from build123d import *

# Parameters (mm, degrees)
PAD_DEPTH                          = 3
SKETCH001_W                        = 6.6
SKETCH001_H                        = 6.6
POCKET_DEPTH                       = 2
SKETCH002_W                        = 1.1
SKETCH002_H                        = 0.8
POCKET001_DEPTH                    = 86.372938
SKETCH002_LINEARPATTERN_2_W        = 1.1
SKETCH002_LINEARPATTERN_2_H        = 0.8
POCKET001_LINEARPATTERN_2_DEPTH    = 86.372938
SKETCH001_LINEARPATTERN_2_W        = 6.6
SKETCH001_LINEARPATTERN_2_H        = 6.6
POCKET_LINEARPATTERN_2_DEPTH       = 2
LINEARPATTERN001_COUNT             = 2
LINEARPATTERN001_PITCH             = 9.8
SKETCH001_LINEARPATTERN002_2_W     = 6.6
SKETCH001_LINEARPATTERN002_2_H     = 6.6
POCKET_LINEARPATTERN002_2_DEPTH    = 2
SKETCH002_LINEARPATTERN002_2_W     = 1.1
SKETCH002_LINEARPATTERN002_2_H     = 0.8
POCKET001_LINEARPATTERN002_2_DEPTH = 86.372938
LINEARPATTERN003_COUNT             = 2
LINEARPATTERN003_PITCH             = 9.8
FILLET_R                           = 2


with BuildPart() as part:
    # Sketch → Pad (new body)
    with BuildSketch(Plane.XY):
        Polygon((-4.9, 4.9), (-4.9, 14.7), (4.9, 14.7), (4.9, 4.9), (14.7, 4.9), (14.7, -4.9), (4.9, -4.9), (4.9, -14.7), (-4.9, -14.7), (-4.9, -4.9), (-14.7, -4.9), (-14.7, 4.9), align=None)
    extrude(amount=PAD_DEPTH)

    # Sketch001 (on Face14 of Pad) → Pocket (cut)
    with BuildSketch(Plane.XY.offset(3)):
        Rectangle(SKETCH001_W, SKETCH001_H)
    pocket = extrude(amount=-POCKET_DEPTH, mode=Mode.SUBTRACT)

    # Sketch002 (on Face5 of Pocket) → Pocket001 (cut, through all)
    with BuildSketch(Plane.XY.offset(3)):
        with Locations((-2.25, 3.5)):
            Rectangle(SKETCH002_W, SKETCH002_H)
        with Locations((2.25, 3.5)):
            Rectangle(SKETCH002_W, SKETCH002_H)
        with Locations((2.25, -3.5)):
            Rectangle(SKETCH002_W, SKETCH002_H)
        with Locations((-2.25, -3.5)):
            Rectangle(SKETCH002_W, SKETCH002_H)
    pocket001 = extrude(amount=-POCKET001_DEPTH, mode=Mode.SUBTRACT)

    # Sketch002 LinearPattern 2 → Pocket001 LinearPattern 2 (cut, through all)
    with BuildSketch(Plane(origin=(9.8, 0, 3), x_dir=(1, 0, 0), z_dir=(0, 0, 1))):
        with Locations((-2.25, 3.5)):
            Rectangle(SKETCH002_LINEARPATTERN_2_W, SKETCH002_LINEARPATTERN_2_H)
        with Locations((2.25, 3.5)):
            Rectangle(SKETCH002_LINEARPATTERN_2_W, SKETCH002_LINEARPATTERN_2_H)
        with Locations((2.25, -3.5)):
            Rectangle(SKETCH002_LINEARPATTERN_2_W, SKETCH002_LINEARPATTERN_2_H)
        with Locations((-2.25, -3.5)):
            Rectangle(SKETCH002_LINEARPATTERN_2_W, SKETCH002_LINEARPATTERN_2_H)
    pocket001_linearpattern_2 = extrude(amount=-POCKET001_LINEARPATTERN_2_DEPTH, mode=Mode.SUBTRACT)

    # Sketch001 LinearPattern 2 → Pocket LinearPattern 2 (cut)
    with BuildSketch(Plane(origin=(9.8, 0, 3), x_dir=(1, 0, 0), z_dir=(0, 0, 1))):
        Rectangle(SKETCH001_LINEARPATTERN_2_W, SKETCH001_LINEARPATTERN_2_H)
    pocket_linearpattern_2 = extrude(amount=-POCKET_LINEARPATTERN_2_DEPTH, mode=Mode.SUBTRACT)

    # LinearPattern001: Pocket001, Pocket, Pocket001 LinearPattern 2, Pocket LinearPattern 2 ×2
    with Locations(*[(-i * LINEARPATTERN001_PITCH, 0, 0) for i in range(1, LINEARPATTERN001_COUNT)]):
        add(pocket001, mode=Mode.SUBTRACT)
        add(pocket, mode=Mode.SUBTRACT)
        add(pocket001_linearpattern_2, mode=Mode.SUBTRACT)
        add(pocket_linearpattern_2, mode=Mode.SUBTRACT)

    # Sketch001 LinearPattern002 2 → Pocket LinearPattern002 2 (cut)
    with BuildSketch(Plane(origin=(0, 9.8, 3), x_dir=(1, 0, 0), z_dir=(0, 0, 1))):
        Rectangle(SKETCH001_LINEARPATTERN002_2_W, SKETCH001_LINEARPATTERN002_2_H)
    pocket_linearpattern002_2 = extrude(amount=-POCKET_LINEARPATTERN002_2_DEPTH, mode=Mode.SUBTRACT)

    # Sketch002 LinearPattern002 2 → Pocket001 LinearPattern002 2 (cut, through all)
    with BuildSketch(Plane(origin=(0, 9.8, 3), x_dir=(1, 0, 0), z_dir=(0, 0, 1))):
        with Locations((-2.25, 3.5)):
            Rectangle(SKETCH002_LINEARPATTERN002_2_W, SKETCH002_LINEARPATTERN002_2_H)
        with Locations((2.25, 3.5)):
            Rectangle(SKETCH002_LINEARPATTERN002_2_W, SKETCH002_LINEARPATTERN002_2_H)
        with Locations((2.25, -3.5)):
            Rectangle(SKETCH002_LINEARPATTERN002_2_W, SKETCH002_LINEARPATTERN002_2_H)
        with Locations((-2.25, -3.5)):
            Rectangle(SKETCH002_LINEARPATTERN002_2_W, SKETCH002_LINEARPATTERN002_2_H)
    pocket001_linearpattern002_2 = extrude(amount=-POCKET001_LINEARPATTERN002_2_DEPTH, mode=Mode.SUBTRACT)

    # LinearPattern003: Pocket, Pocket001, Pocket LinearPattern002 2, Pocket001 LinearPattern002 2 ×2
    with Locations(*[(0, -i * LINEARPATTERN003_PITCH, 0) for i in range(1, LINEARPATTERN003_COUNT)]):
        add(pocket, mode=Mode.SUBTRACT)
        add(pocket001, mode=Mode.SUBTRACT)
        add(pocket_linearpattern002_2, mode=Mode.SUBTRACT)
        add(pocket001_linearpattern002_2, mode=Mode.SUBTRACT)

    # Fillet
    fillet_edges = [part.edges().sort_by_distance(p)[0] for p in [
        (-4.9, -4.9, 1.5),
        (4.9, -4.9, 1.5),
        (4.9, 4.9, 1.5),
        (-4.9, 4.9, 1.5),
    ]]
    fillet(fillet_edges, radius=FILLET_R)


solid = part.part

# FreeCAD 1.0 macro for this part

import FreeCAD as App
import Part
import Sketcher
Q = App.Units.Quantity


def edges_at(feature, points):
    """Names of the edges that pass closest to the given points."""
    edges = feature.Shape.Edges
    near = lambda p: min(range(len(edges)), key=lambda i: edges[i].distToShape(Part.Vertex(*p))[0])
    return sorted({f"Edge{near(p) + 1}" for p in points})

doc = App.newDocument("Part")
params = doc.addObject("Spreadsheet::Sheet", "Params")
for row, (alias, value) in enumerate([
    ("sketch1_width", "9.8 mm"),
    ("pad1_length", "3 mm"),
    ("sketch2_width", "6.6 mm"),
    ("pocket1_length", "2 mm"),
    ("sketch3_width", "1.1 mm"),
    ("sketch3_height", "0.8 mm"),
    ("sketch4_width", "1.1 mm"),
    ("sketch4_height", "0.8 mm"),
    ("sketch5_width", "6.6 mm"),
    ("pocket4_length", "2 mm"),
    ("linearpattern_pitch", "9.8 mm"),
    ("sketch6_width", "6.6 mm"),
    ("pocket5_length", "2 mm"),
    ("sketch7_width", "1.1 mm"),
    ("sketch7_height", "0.8 mm"),
    ("linearpattern2_pitch", "9.8 mm"),
    ("fillet_radius", "2 mm"),
], start=1):
    params.set(f"A{row}", alias)
    params.set(f"B{row}", "=" + value)
    params.setAlias(f"B{row}", alias)

body = doc.addObject("PartDesign::Body", "Body")

# Sketch on XY plane
sketch1 = doc.addObject("Sketcher::SketchObject", "Sketch")
body.addObject(sketch1)
sketch1.AttachmentSupport = (doc.XY_Plane, [""])
sketch1.MapMode = "FlatFace"
sketch1.addGeometry(Part.LineSegment(App.Vector(-5, 15, 0), App.Vector(-5, 5, 0)), False)
sketch1.addGeometry(Part.LineSegment(App.Vector(-5, 5, 0), App.Vector(-15, 5, 0)), False)
sketch1.addGeometry(Part.LineSegment(App.Vector(-15, 5, 0), App.Vector(-15, -5, 0)), False)
sketch1.addGeometry(Part.LineSegment(App.Vector(-15, -5, 0), App.Vector(-5, -5, 0)), False)
sketch1.addGeometry(Part.LineSegment(App.Vector(-5, -5, 0), App.Vector(-5, -15, 0)), False)
sketch1.addGeometry(Part.LineSegment(App.Vector(-5, -15, 0), App.Vector(5, -15, 0)), False)
sketch1.addGeometry(Part.LineSegment(App.Vector(5, -15, 0), App.Vector(5, -5, 0)), False)
sketch1.addGeometry(Part.LineSegment(App.Vector(5, -5, 0), App.Vector(15, -5, 0)), False)
sketch1.addGeometry(Part.LineSegment(App.Vector(15, -5, 0), App.Vector(15, 5, 0)), False)
sketch1.addGeometry(Part.LineSegment(App.Vector(15, 5, 0), App.Vector(5, 5, 0)), False)
sketch1.addGeometry(Part.LineSegment(App.Vector(5, 5, 0), App.Vector(5, 15, 0)), False)
sketch1.addGeometry(Part.LineSegment(App.Vector(5, 15, 0), App.Vector(-5, 15, 0)), False)
sketch1.addConstraint(Sketcher.Constraint("Coincident", 0, 2, 1, 1))
sketch1.addConstraint(Sketcher.Constraint("Coincident", 1, 2, 2, 1))
sketch1.addConstraint(Sketcher.Constraint("Coincident", 2, 2, 3, 1))
sketch1.addConstraint(Sketcher.Constraint("Coincident", 3, 2, 4, 1))
sketch1.addConstraint(Sketcher.Constraint("Coincident", 4, 2, 5, 1))
sketch1.addConstraint(Sketcher.Constraint("Coincident", 5, 2, 6, 1))
sketch1.addConstraint(Sketcher.Constraint("Coincident", 6, 2, 7, 1))
sketch1.addConstraint(Sketcher.Constraint("Coincident", 7, 2, 8, 1))
sketch1.addConstraint(Sketcher.Constraint("Coincident", 8, 2, 9, 1))
sketch1.addConstraint(Sketcher.Constraint("Coincident", 9, 2, 10, 1))
sketch1.addConstraint(Sketcher.Constraint("Coincident", 10, 2, 11, 1))
sketch1.addConstraint(Sketcher.Constraint("Coincident", 11, 2, 0, 1))
sketch1.addConstraint(Sketcher.Constraint("Vertical", 0))
sketch1.addConstraint(Sketcher.Constraint("Horizontal", 1))
sketch1.addConstraint(Sketcher.Constraint("Vertical", 2))
sketch1.addConstraint(Sketcher.Constraint("Horizontal", 3))
sketch1.addConstraint(Sketcher.Constraint("Vertical", 4))
sketch1.addConstraint(Sketcher.Constraint("Horizontal", 5))
sketch1.addConstraint(Sketcher.Constraint("Vertical", 6))
sketch1.addConstraint(Sketcher.Constraint("Horizontal", 7))
sketch1.addConstraint(Sketcher.Constraint("Vertical", 8))
sketch1.addConstraint(Sketcher.Constraint("Horizontal", 9))
sketch1.addConstraint(Sketcher.Constraint("Vertical", 10))
sketch1.addConstraint(Sketcher.Constraint("Horizontal", 11))
sketch1.addConstraint(Sketcher.Constraint("Symmetric", 0, 2, 6, 2, -1, 1))
sketch1.addConstraint(Sketcher.Constraint("Symmetric", 2, 2, 8, 2, -1, 1))
sketch1.addConstraint(Sketcher.Constraint("Symmetric", 4, 2, 10, 2, -1, 1))
sketch1.addConstraint(Sketcher.Constraint("Symmetric", 3, 2, 6, 2, -2))
sketch1.addConstraint(Sketcher.Constraint("Equal", 3, 5))
sketch1.addConstraint(Sketcher.Constraint("Equal", 11, 0))
sketch1.addConstraint(Sketcher.Constraint("Equal", 0, 2))
sketch1.addConstraint(Sketcher.Constraint("DistanceX", 1, 2, 1, 1, Q("9.8 mm")))
sketch1.setExpression("Constraints[31]", "Params.sketch1_width")
pad1 = doc.addObject("PartDesign::Pad", "Pad")
body.addObject(pad1)
pad1.Profile = sketch1
pad1.setExpression("Length", "Params.pad1_length")

# Sketch on XY plane
sketch2 = doc.addObject("Sketcher::SketchObject", "Sketch001")
body.addObject(sketch2)
sketch2.AttachmentSupport = (doc.XY_Plane, [""])
sketch2.MapMode = "FlatFace"
sketch2.AttachmentOffset = App.Placement(App.Vector(0, 0, 3), App.Rotation())
sketch2.addGeometry(Part.LineSegment(App.Vector(-3, 3, 0), App.Vector(-3, -3, 0)), False)
sketch2.addGeometry(Part.LineSegment(App.Vector(-3, -3, 0), App.Vector(3, -3, 0)), False)
sketch2.addGeometry(Part.LineSegment(App.Vector(3, -3, 0), App.Vector(3, 3, 0)), False)
sketch2.addGeometry(Part.LineSegment(App.Vector(3, 3, 0), App.Vector(-3, 3, 0)), False)
sketch2.addConstraint(Sketcher.Constraint("Coincident", 0, 2, 1, 1))
sketch2.addConstraint(Sketcher.Constraint("Coincident", 1, 2, 2, 1))
sketch2.addConstraint(Sketcher.Constraint("Coincident", 2, 2, 3, 1))
sketch2.addConstraint(Sketcher.Constraint("Coincident", 3, 2, 0, 1))
sketch2.addConstraint(Sketcher.Constraint("Vertical", 0))
sketch2.addConstraint(Sketcher.Constraint("Horizontal", 1))
sketch2.addConstraint(Sketcher.Constraint("Vertical", 2))
sketch2.addConstraint(Sketcher.Constraint("Horizontal", 3))
sketch2.addConstraint(Sketcher.Constraint("Symmetric", 0, 2, 2, 2, -1, 1))
sketch2.addConstraint(Sketcher.Constraint("Equal", 3, 0))
sketch2.addConstraint(Sketcher.Constraint("DistanceX", 1, 1, 1, 2, Q("6.6 mm")))
sketch2.setExpression("Constraints[10]", "Params.sketch2_width")
pocket1 = doc.addObject("PartDesign::Pocket", "Pocket")
body.addObject(pocket1)
pocket1.Profile = sketch2
pocket1.setExpression("Length", "Params.pocket1_length")

# Sketch on XY plane
sketch3 = doc.addObject("Sketcher::SketchObject", "Sketch002")
body.addObject(sketch3)
sketch3.AttachmentSupport = (doc.XY_Plane, [""])
sketch3.MapMode = "FlatFace"
sketch3.AttachmentOffset = App.Placement(App.Vector(0, 0, 3), App.Rotation())
sketch3.addGeometry(Part.LineSegment(App.Vector(-2.8, 3.9, 0), App.Vector(-2.8, 3.1, 0)), False)
sketch3.addGeometry(Part.LineSegment(App.Vector(-2.8, 3.1, 0), App.Vector(-1.7, 3.1, 0)), False)
sketch3.addGeometry(Part.LineSegment(App.Vector(-1.7, 3.1, 0), App.Vector(-1.7, 3.9, 0)), False)
sketch3.addGeometry(Part.LineSegment(App.Vector(-1.7, 3.9, 0), App.Vector(-2.8, 3.9, 0)), False)
sketch3.addGeometry(Part.LineSegment(App.Vector(1.7, 3.9, 0), App.Vector(1.7, 3.1, 0)), False)
sketch3.addGeometry(Part.LineSegment(App.Vector(1.7, 3.1, 0), App.Vector(2.8, 3.1, 0)), False)
sketch3.addGeometry(Part.LineSegment(App.Vector(2.8, 3.1, 0), App.Vector(2.8, 3.9, 0)), False)
sketch3.addGeometry(Part.LineSegment(App.Vector(2.8, 3.9, 0), App.Vector(1.7, 3.9, 0)), False)
sketch3.addGeometry(Part.LineSegment(App.Vector(1.7, -3.1, 0), App.Vector(1.7, -3.9, 0)), False)
sketch3.addGeometry(Part.LineSegment(App.Vector(1.7, -3.9, 0), App.Vector(2.8, -3.9, 0)), False)
sketch3.addGeometry(Part.LineSegment(App.Vector(2.8, -3.9, 0), App.Vector(2.8, -3.1, 0)), False)
sketch3.addGeometry(Part.LineSegment(App.Vector(2.8, -3.1, 0), App.Vector(1.7, -3.1, 0)), False)
sketch3.addGeometry(Part.LineSegment(App.Vector(-2.8, -3.1, 0), App.Vector(-2.8, -3.9, 0)), False)
sketch3.addGeometry(Part.LineSegment(App.Vector(-2.8, -3.9, 0), App.Vector(-1.7, -3.9, 0)), False)
sketch3.addGeometry(Part.LineSegment(App.Vector(-1.7, -3.9, 0), App.Vector(-1.7, -3.1, 0)), False)
sketch3.addGeometry(Part.LineSegment(App.Vector(-1.7, -3.1, 0), App.Vector(-2.8, -3.1, 0)), False)
sketch3.addConstraint(Sketcher.Constraint("Coincident", 0, 2, 1, 1))
sketch3.addConstraint(Sketcher.Constraint("Coincident", 1, 2, 2, 1))
sketch3.addConstraint(Sketcher.Constraint("Coincident", 2, 2, 3, 1))
sketch3.addConstraint(Sketcher.Constraint("Coincident", 3, 2, 0, 1))
sketch3.addConstraint(Sketcher.Constraint("Coincident", 4, 2, 5, 1))
sketch3.addConstraint(Sketcher.Constraint("Coincident", 5, 2, 6, 1))
sketch3.addConstraint(Sketcher.Constraint("Coincident", 6, 2, 7, 1))
sketch3.addConstraint(Sketcher.Constraint("Coincident", 7, 2, 4, 1))
sketch3.addConstraint(Sketcher.Constraint("Coincident", 8, 2, 9, 1))
sketch3.addConstraint(Sketcher.Constraint("Coincident", 9, 2, 10, 1))
sketch3.addConstraint(Sketcher.Constraint("Coincident", 10, 2, 11, 1))
sketch3.addConstraint(Sketcher.Constraint("Coincident", 11, 2, 8, 1))
sketch3.addConstraint(Sketcher.Constraint("Coincident", 12, 2, 13, 1))
sketch3.addConstraint(Sketcher.Constraint("Coincident", 13, 2, 14, 1))
sketch3.addConstraint(Sketcher.Constraint("Coincident", 14, 2, 15, 1))
sketch3.addConstraint(Sketcher.Constraint("Coincident", 15, 2, 12, 1))
sketch3.addConstraint(Sketcher.Constraint("Vertical", 0))
sketch3.addConstraint(Sketcher.Constraint("Horizontal", 1))
sketch3.addConstraint(Sketcher.Constraint("Vertical", 2))
sketch3.addConstraint(Sketcher.Constraint("Horizontal", 3))
sketch3.addConstraint(Sketcher.Constraint("Vertical", 4))
sketch3.addConstraint(Sketcher.Constraint("Horizontal", 5))
sketch3.addConstraint(Sketcher.Constraint("Vertical", 6))
sketch3.addConstraint(Sketcher.Constraint("Horizontal", 7))
sketch3.addConstraint(Sketcher.Constraint("Vertical", 8))
sketch3.addConstraint(Sketcher.Constraint("Horizontal", 9))
sketch3.addConstraint(Sketcher.Constraint("Vertical", 10))
sketch3.addConstraint(Sketcher.Constraint("Horizontal", 11))
sketch3.addConstraint(Sketcher.Constraint("Vertical", 12))
sketch3.addConstraint(Sketcher.Constraint("Horizontal", 13))
sketch3.addConstraint(Sketcher.Constraint("Vertical", 14))
sketch3.addConstraint(Sketcher.Constraint("Horizontal", 15))
sketch3.addConstraint(Sketcher.Constraint("Symmetric", 2, 2, 8, 2, -1, 1))
sketch3.addConstraint(Sketcher.Constraint("Symmetric", 0, 2, 10, 2, -1, 1))
sketch3.addConstraint(Sketcher.Constraint("Symmetric", 6, 2, 12, 2, -1, 1))
sketch3.addConstraint(Sketcher.Constraint("Symmetric", 4, 2, 14, 2, -1, 1))
sketch3.addConstraint(Sketcher.Constraint("Symmetric", 1, 2, 4, 2, -2))
sketch3.addConstraint(Sketcher.Constraint("Symmetric", 3, 2, 6, 2, -2))
sketch3.addConstraint(Sketcher.Constraint("DistanceX", 1, 1, 1, 2, Q("1.1 mm")))
sketch3.addConstraint(Sketcher.Constraint("DistanceY", 0, 2, 0, 1, Q("0.8 mm")))
sketch3.addConstraint(Sketcher.Constraint("DistanceY", 8, 2, 4, 2, Q("7 mm")))
sketch3.addConstraint(Sketcher.Constraint("DistanceX", 0, 2, -1, 1, Q("2.8 mm")))
sketch3.setExpression("Constraints[38]", "Params.sketch3_width")
sketch3.setExpression("Constraints[39]", "Params.sketch3_height")
pocket2 = doc.addObject("PartDesign::Pocket", "Pocket001")
body.addObject(pocket2)
pocket2.Profile = sketch3
pocket2.Type = "ThroughAll"

# Sketch on XY plane
sketch4 = doc.addObject("Sketcher::SketchObject", "Sketch003")
body.addObject(sketch4)
sketch4.AttachmentSupport = (doc.XY_Plane, [""])
sketch4.MapMode = "FlatFace"
sketch4.AttachmentOffset = App.Placement(App.Vector(0, 0, 3), App.Rotation())
sketch4.addGeometry(Part.LineSegment(App.Vector(7, 3.9, 0), App.Vector(7, 3.1, 0)), False)
sketch4.addGeometry(Part.LineSegment(App.Vector(7, 3.1, 0), App.Vector(8.1, 3.1, 0)), False)
sketch4.addGeometry(Part.LineSegment(App.Vector(8.1, 3.1, 0), App.Vector(8.1, 3.9, 0)), False)
sketch4.addGeometry(Part.LineSegment(App.Vector(8.1, 3.9, 0), App.Vector(7, 3.9, 0)), False)
sketch4.addGeometry(Part.LineSegment(App.Vector(11.5, 3.9, 0), App.Vector(11.5, 3.1, 0)), False)
sketch4.addGeometry(Part.LineSegment(App.Vector(11.5, 3.1, 0), App.Vector(12.6, 3.1, 0)), False)
sketch4.addGeometry(Part.LineSegment(App.Vector(12.6, 3.1, 0), App.Vector(12.6, 3.9, 0)), False)
sketch4.addGeometry(Part.LineSegment(App.Vector(12.6, 3.9, 0), App.Vector(11.5, 3.9, 0)), False)
sketch4.addGeometry(Part.LineSegment(App.Vector(11.5, -3.1, 0), App.Vector(11.5, -3.9, 0)), False)
sketch4.addGeometry(Part.LineSegment(App.Vector(11.5, -3.9, 0), App.Vector(12.6, -3.9, 0)), False)
sketch4.addGeometry(Part.LineSegment(App.Vector(12.6, -3.9, 0), App.Vector(12.6, -3.1, 0)), False)
sketch4.addGeometry(Part.LineSegment(App.Vector(12.6, -3.1, 0), App.Vector(11.5, -3.1, 0)), False)
sketch4.addGeometry(Part.LineSegment(App.Vector(7, -3.1, 0), App.Vector(7, -3.9, 0)), False)
sketch4.addGeometry(Part.LineSegment(App.Vector(7, -3.9, 0), App.Vector(8.1, -3.9, 0)), False)
sketch4.addGeometry(Part.LineSegment(App.Vector(8.1, -3.9, 0), App.Vector(8.1, -3.1, 0)), False)
sketch4.addGeometry(Part.LineSegment(App.Vector(8.1, -3.1, 0), App.Vector(7, -3.1, 0)), False)
sketch4.addConstraint(Sketcher.Constraint("Coincident", 0, 2, 1, 1))
sketch4.addConstraint(Sketcher.Constraint("Coincident", 1, 2, 2, 1))
sketch4.addConstraint(Sketcher.Constraint("Coincident", 2, 2, 3, 1))
sketch4.addConstraint(Sketcher.Constraint("Coincident", 3, 2, 0, 1))
sketch4.addConstraint(Sketcher.Constraint("Coincident", 4, 2, 5, 1))
sketch4.addConstraint(Sketcher.Constraint("Coincident", 5, 2, 6, 1))
sketch4.addConstraint(Sketcher.Constraint("Coincident", 6, 2, 7, 1))
sketch4.addConstraint(Sketcher.Constraint("Coincident", 7, 2, 4, 1))
sketch4.addConstraint(Sketcher.Constraint("Coincident", 8, 2, 9, 1))
sketch4.addConstraint(Sketcher.Constraint("Coincident", 9, 2, 10, 1))
sketch4.addConstraint(Sketcher.Constraint("Coincident", 10, 2, 11, 1))
sketch4.addConstraint(Sketcher.Constraint("Coincident", 11, 2, 8, 1))
sketch4.addConstraint(Sketcher.Constraint("Coincident", 12, 2, 13, 1))
sketch4.addConstraint(Sketcher.Constraint("Coincident", 13, 2, 14, 1))
sketch4.addConstraint(Sketcher.Constraint("Coincident", 14, 2, 15, 1))
sketch4.addConstraint(Sketcher.Constraint("Coincident", 15, 2, 12, 1))
sketch4.addConstraint(Sketcher.Constraint("Vertical", 0))
sketch4.addConstraint(Sketcher.Constraint("Horizontal", 1))
sketch4.addConstraint(Sketcher.Constraint("Vertical", 2))
sketch4.addConstraint(Sketcher.Constraint("Horizontal", 3))
sketch4.addConstraint(Sketcher.Constraint("Vertical", 4))
sketch4.addConstraint(Sketcher.Constraint("Horizontal", 5))
sketch4.addConstraint(Sketcher.Constraint("Vertical", 6))
sketch4.addConstraint(Sketcher.Constraint("Horizontal", 7))
sketch4.addConstraint(Sketcher.Constraint("Vertical", 8))
sketch4.addConstraint(Sketcher.Constraint("Horizontal", 9))
sketch4.addConstraint(Sketcher.Constraint("Vertical", 10))
sketch4.addConstraint(Sketcher.Constraint("Horizontal", 11))
sketch4.addConstraint(Sketcher.Constraint("Vertical", 12))
sketch4.addConstraint(Sketcher.Constraint("Horizontal", 13))
sketch4.addConstraint(Sketcher.Constraint("Vertical", 14))
sketch4.addConstraint(Sketcher.Constraint("Horizontal", 15))
sketch4.addConstraint(Sketcher.Constraint("Symmetric", 7, 2, 8, 2, -1))
sketch4.addConstraint(Sketcher.Constraint("Symmetric", 5, 2, 10, 2, -1))
sketch4.addConstraint(Sketcher.Constraint("Symmetric", 3, 2, 12, 2, -1))
sketch4.addConstraint(Sketcher.Constraint("Symmetric", 1, 2, 14, 2, -1))
sketch4.addConstraint(Sketcher.Constraint("Horizontal", 1, 2, 4, 2))
sketch4.addConstraint(Sketcher.Constraint("Horizontal", 3, 2, 6, 2))
sketch4.addConstraint(Sketcher.Constraint("Equal", 3, 5))
sketch4.addConstraint(Sketcher.Constraint("DistanceX", 1, 1, 1, 2, Q("1.1 mm")))
sketch4.addConstraint(Sketcher.Constraint("DistanceY", 0, 2, 0, 1, Q("0.8 mm")))
sketch4.addConstraint(Sketcher.Constraint("DistanceX", -1, 1, 0, 2, Q("7 mm")))
sketch4.addConstraint(Sketcher.Constraint("DistanceY", 8, 2, 4, 2, Q("7 mm")))
sketch4.addConstraint(Sketcher.Constraint("DistanceX", -1, 1, 4, 2, Q("11.5 mm")))
sketch4.setExpression("Constraints[39]", "Params.sketch4_width")
sketch4.setExpression("Constraints[40]", "Params.sketch4_height")
pocket3 = doc.addObject("PartDesign::Pocket", "Pocket002")
body.addObject(pocket3)
pocket3.Profile = sketch4
pocket3.Type = "ThroughAll"

# Sketch on XY plane
sketch5 = doc.addObject("Sketcher::SketchObject", "Sketch004")
body.addObject(sketch5)
sketch5.AttachmentSupport = (doc.XY_Plane, [""])
sketch5.MapMode = "FlatFace"
sketch5.AttachmentOffset = App.Placement(App.Vector(0, 0, 3), App.Rotation())
sketch5.addGeometry(Part.LineSegment(App.Vector(6, 3, 0), App.Vector(6, -3, 0)), False)
sketch5.addGeometry(Part.LineSegment(App.Vector(6, -3, 0), App.Vector(13, -3, 0)), False)
sketch5.addGeometry(Part.LineSegment(App.Vector(13, -3, 0), App.Vector(13, 3, 0)), False)
sketch5.addGeometry(Part.LineSegment(App.Vector(13, 3, 0), App.Vector(6, 3, 0)), False)
sketch5.addConstraint(Sketcher.Constraint("Coincident", 0, 2, 1, 1))
sketch5.addConstraint(Sketcher.Constraint("Coincident", 1, 2, 2, 1))
sketch5.addConstraint(Sketcher.Constraint("Coincident", 2, 2, 3, 1))
sketch5.addConstraint(Sketcher.Constraint("Coincident", 3, 2, 0, 1))
sketch5.addConstraint(Sketcher.Constraint("Vertical", 0))
sketch5.addConstraint(Sketcher.Constraint("Horizontal", 1))
sketch5.addConstraint(Sketcher.Constraint("Vertical", 2))
sketch5.addConstraint(Sketcher.Constraint("Horizontal", 3))
sketch5.addConstraint(Sketcher.Constraint("Equal", 3, 0))
sketch5.addConstraint(Sketcher.Constraint("DistanceX", 1, 1, 1, 2, Q("6.6 mm")))
sketch5.addConstraint(Sketcher.Constraint("DistanceX", -1, 1, 0, 2, Q("6.5 mm")))
sketch5.addConstraint(Sketcher.Constraint("DistanceY", 0, 2, -1, 1, Q("3.3 mm")))
sketch5.setExpression("Constraints[9]", "Params.sketch5_width")
pocket4 = doc.addObject("PartDesign::Pocket", "Pocket003")
body.addObject(pocket4)
pocket4.Profile = sketch5
pocket4.setExpression("Length", "Params.pocket4_length")
doc.recompute()

linearpattern = doc.addObject("PartDesign::LinearPattern", "LinearPattern")
body.addObject(linearpattern)
linearpattern.Originals = [pocket2, pocket1, pocket3, pocket4]
linearpattern.Direction = (doc.X_Axis, [""])
linearpattern.Mode = "offset"
linearpattern.setExpression("Offset", "Params.linearpattern_pitch")
linearpattern.Occurrences = 2
linearpattern.Reversed = True
body.Tip = linearpattern

# Sketch on XY plane
sketch6 = doc.addObject("Sketcher::SketchObject", "Sketch005")
body.addObject(sketch6)
sketch6.AttachmentSupport = (doc.XY_Plane, [""])
sketch6.MapMode = "FlatFace"
sketch6.AttachmentOffset = App.Placement(App.Vector(0, 0, 3), App.Rotation())
sketch6.addGeometry(Part.LineSegment(App.Vector(-3, 13, 0), App.Vector(-3, 6, 0)), False)
sketch6.addGeometry(Part.LineSegment(App.Vector(-3, 6, 0), App.Vector(3, 6, 0)), False)
sketch6.addGeometry(Part.LineSegment(App.Vector(3, 6, 0), App.Vector(3, 13, 0)), False)
sketch6.addGeometry(Part.LineSegment(App.Vector(3, 13, 0), App.Vector(-3, 13, 0)), False)
sketch6.addConstraint(Sketcher.Constraint("Coincident", 0, 2, 1, 1))
sketch6.addConstraint(Sketcher.Constraint("Coincident", 1, 2, 2, 1))
sketch6.addConstraint(Sketcher.Constraint("Coincident", 2, 2, 3, 1))
sketch6.addConstraint(Sketcher.Constraint("Coincident", 3, 2, 0, 1))
sketch6.addConstraint(Sketcher.Constraint("Vertical", 0))
sketch6.addConstraint(Sketcher.Constraint("Horizontal", 1))
sketch6.addConstraint(Sketcher.Constraint("Vertical", 2))
sketch6.addConstraint(Sketcher.Constraint("Horizontal", 3))
sketch6.addConstraint(Sketcher.Constraint("Equal", 3, 0))
sketch6.addConstraint(Sketcher.Constraint("DistanceX", 1, 1, 1, 2, Q("6.6 mm")))
sketch6.addConstraint(Sketcher.Constraint("DistanceX", 0, 2, -1, 1, Q("3.3 mm")))
sketch6.addConstraint(Sketcher.Constraint("DistanceY", -1, 1, 0, 2, Q("6.5 mm")))
sketch6.setExpression("Constraints[9]", "Params.sketch6_width")
pocket5 = doc.addObject("PartDesign::Pocket", "Pocket004")
body.addObject(pocket5)
pocket5.Profile = sketch6
pocket5.setExpression("Length", "Params.pocket5_length")

# Sketch on XY plane
sketch7 = doc.addObject("Sketcher::SketchObject", "Sketch006")
body.addObject(sketch7)
sketch7.AttachmentSupport = (doc.XY_Plane, [""])
sketch7.MapMode = "FlatFace"
sketch7.AttachmentOffset = App.Placement(App.Vector(0, 0, 3), App.Rotation())
sketch7.addGeometry(Part.LineSegment(App.Vector(-2.8, 13.7, 0), App.Vector(-2.8, 12.9, 0)), False)
sketch7.addGeometry(Part.LineSegment(App.Vector(-2.8, 12.9, 0), App.Vector(-1.7, 12.9, 0)), False)
sketch7.addGeometry(Part.LineSegment(App.Vector(-1.7, 12.9, 0), App.Vector(-1.7, 13.7, 0)), False)
sketch7.addGeometry(Part.LineSegment(App.Vector(-1.7, 13.7, 0), App.Vector(-2.8, 13.7, 0)), False)
sketch7.addGeometry(Part.LineSegment(App.Vector(1.7, 13.7, 0), App.Vector(1.7, 12.9, 0)), False)
sketch7.addGeometry(Part.LineSegment(App.Vector(1.7, 12.9, 0), App.Vector(2.8, 12.9, 0)), False)
sketch7.addGeometry(Part.LineSegment(App.Vector(2.8, 12.9, 0), App.Vector(2.8, 13.7, 0)), False)
sketch7.addGeometry(Part.LineSegment(App.Vector(2.8, 13.7, 0), App.Vector(1.7, 13.7, 0)), False)
sketch7.addGeometry(Part.LineSegment(App.Vector(1.7, 6.7, 0), App.Vector(1.7, 5.9, 0)), False)
sketch7.addGeometry(Part.LineSegment(App.Vector(1.7, 5.9, 0), App.Vector(2.8, 5.9, 0)), False)
sketch7.addGeometry(Part.LineSegment(App.Vector(2.8, 5.9, 0), App.Vector(2.8, 6.7, 0)), False)
sketch7.addGeometry(Part.LineSegment(App.Vector(2.8, 6.7, 0), App.Vector(1.7, 6.7, 0)), False)
sketch7.addGeometry(Part.LineSegment(App.Vector(-2.8, 6.7, 0), App.Vector(-2.8, 5.9, 0)), False)
sketch7.addGeometry(Part.LineSegment(App.Vector(-2.8, 5.9, 0), App.Vector(-1.7, 5.9, 0)), False)
sketch7.addGeometry(Part.LineSegment(App.Vector(-1.7, 5.9, 0), App.Vector(-1.7, 6.7, 0)), False)
sketch7.addGeometry(Part.LineSegment(App.Vector(-1.7, 6.7, 0), App.Vector(-2.8, 6.7, 0)), False)
sketch7.addConstraint(Sketcher.Constraint("Coincident", 0, 2, 1, 1))
sketch7.addConstraint(Sketcher.Constraint("Coincident", 1, 2, 2, 1))
sketch7.addConstraint(Sketcher.Constraint("Coincident", 2, 2, 3, 1))
sketch7.addConstraint(Sketcher.Constraint("Coincident", 3, 2, 0, 1))
sketch7.addConstraint(Sketcher.Constraint("Coincident", 4, 2, 5, 1))
sketch7.addConstraint(Sketcher.Constraint("Coincident", 5, 2, 6, 1))
sketch7.addConstraint(Sketcher.Constraint("Coincident", 6, 2, 7, 1))
sketch7.addConstraint(Sketcher.Constraint("Coincident", 7, 2, 4, 1))
sketch7.addConstraint(Sketcher.Constraint("Coincident", 8, 2, 9, 1))
sketch7.addConstraint(Sketcher.Constraint("Coincident", 9, 2, 10, 1))
sketch7.addConstraint(Sketcher.Constraint("Coincident", 10, 2, 11, 1))
sketch7.addConstraint(Sketcher.Constraint("Coincident", 11, 2, 8, 1))
sketch7.addConstraint(Sketcher.Constraint("Coincident", 12, 2, 13, 1))
sketch7.addConstraint(Sketcher.Constraint("Coincident", 13, 2, 14, 1))
sketch7.addConstraint(Sketcher.Constraint("Coincident", 14, 2, 15, 1))
sketch7.addConstraint(Sketcher.Constraint("Coincident", 15, 2, 12, 1))
sketch7.addConstraint(Sketcher.Constraint("Vertical", 0))
sketch7.addConstraint(Sketcher.Constraint("Horizontal", 1))
sketch7.addConstraint(Sketcher.Constraint("Vertical", 2))
sketch7.addConstraint(Sketcher.Constraint("Horizontal", 3))
sketch7.addConstraint(Sketcher.Constraint("Vertical", 4))
sketch7.addConstraint(Sketcher.Constraint("Horizontal", 5))
sketch7.addConstraint(Sketcher.Constraint("Vertical", 6))
sketch7.addConstraint(Sketcher.Constraint("Horizontal", 7))
sketch7.addConstraint(Sketcher.Constraint("Vertical", 8))
sketch7.addConstraint(Sketcher.Constraint("Horizontal", 9))
sketch7.addConstraint(Sketcher.Constraint("Vertical", 10))
sketch7.addConstraint(Sketcher.Constraint("Horizontal", 11))
sketch7.addConstraint(Sketcher.Constraint("Vertical", 12))
sketch7.addConstraint(Sketcher.Constraint("Horizontal", 13))
sketch7.addConstraint(Sketcher.Constraint("Vertical", 14))
sketch7.addConstraint(Sketcher.Constraint("Horizontal", 15))
sketch7.addConstraint(Sketcher.Constraint("Symmetric", 1, 2, 4, 2, -2))
sketch7.addConstraint(Sketcher.Constraint("Symmetric", 3, 2, 6, 2, -2))
sketch7.addConstraint(Sketcher.Constraint("Symmetric", 9, 2, 12, 2, -2))
sketch7.addConstraint(Sketcher.Constraint("Symmetric", 11, 2, 14, 2, -2))
sketch7.addConstraint(Sketcher.Constraint("Vertical", 7, 2, 8, 2))
sketch7.addConstraint(Sketcher.Constraint("Vertical", 6, 2, 9, 2))
sketch7.addConstraint(Sketcher.Constraint("Equal", 6, 8))
sketch7.addConstraint(Sketcher.Constraint("DistanceX", 1, 1, 1, 2, Q("1.1 mm")))
sketch7.addConstraint(Sketcher.Constraint("DistanceY", 0, 2, 0, 1, Q("0.8 mm")))
sketch7.addConstraint(Sketcher.Constraint("DistanceY", 8, 2, 4, 2, Q("7 mm")))
sketch7.addConstraint(Sketcher.Constraint("DistanceX", 0, 2, -1, 1, Q("2.8 mm")))
sketch7.addConstraint(Sketcher.Constraint("DistanceY", -1, 1, 0, 2, Q("12.9 mm")))
sketch7.setExpression("Constraints[39]", "Params.sketch7_width")
sketch7.setExpression("Constraints[40]", "Params.sketch7_height")
pocket6 = doc.addObject("PartDesign::Pocket", "Pocket005")
body.addObject(pocket6)
pocket6.Profile = sketch7
pocket6.Type = "ThroughAll"
doc.recompute()

linearpattern2 = doc.addObject("PartDesign::LinearPattern", "LinearPattern001")
body.addObject(linearpattern2)
linearpattern2.Originals = [pocket1, pocket2, pocket5, pocket6]
linearpattern2.Direction = (doc.Y_Axis, [""])
linearpattern2.Mode = "offset"
linearpattern2.setExpression("Offset", "Params.linearpattern2_pitch")
linearpattern2.Occurrences = 2
linearpattern2.Reversed = True
body.Tip = linearpattern2
doc.recompute()

fillet = doc.addObject("PartDesign::Fillet", "Fillet")
body.addObject(fillet)
fillet.Base = (linearpattern2, edges_at(linearpattern2, [
    (-4.9, -4.9, 1.5),
    (4.9, -4.9, 1.5),
    (4.9, 4.9, 1.5),
    (-4.9, 4.9, 1.5),
]))
fillet.setExpression("Radius", "Params.fillet_radius")

doc.recompute()
